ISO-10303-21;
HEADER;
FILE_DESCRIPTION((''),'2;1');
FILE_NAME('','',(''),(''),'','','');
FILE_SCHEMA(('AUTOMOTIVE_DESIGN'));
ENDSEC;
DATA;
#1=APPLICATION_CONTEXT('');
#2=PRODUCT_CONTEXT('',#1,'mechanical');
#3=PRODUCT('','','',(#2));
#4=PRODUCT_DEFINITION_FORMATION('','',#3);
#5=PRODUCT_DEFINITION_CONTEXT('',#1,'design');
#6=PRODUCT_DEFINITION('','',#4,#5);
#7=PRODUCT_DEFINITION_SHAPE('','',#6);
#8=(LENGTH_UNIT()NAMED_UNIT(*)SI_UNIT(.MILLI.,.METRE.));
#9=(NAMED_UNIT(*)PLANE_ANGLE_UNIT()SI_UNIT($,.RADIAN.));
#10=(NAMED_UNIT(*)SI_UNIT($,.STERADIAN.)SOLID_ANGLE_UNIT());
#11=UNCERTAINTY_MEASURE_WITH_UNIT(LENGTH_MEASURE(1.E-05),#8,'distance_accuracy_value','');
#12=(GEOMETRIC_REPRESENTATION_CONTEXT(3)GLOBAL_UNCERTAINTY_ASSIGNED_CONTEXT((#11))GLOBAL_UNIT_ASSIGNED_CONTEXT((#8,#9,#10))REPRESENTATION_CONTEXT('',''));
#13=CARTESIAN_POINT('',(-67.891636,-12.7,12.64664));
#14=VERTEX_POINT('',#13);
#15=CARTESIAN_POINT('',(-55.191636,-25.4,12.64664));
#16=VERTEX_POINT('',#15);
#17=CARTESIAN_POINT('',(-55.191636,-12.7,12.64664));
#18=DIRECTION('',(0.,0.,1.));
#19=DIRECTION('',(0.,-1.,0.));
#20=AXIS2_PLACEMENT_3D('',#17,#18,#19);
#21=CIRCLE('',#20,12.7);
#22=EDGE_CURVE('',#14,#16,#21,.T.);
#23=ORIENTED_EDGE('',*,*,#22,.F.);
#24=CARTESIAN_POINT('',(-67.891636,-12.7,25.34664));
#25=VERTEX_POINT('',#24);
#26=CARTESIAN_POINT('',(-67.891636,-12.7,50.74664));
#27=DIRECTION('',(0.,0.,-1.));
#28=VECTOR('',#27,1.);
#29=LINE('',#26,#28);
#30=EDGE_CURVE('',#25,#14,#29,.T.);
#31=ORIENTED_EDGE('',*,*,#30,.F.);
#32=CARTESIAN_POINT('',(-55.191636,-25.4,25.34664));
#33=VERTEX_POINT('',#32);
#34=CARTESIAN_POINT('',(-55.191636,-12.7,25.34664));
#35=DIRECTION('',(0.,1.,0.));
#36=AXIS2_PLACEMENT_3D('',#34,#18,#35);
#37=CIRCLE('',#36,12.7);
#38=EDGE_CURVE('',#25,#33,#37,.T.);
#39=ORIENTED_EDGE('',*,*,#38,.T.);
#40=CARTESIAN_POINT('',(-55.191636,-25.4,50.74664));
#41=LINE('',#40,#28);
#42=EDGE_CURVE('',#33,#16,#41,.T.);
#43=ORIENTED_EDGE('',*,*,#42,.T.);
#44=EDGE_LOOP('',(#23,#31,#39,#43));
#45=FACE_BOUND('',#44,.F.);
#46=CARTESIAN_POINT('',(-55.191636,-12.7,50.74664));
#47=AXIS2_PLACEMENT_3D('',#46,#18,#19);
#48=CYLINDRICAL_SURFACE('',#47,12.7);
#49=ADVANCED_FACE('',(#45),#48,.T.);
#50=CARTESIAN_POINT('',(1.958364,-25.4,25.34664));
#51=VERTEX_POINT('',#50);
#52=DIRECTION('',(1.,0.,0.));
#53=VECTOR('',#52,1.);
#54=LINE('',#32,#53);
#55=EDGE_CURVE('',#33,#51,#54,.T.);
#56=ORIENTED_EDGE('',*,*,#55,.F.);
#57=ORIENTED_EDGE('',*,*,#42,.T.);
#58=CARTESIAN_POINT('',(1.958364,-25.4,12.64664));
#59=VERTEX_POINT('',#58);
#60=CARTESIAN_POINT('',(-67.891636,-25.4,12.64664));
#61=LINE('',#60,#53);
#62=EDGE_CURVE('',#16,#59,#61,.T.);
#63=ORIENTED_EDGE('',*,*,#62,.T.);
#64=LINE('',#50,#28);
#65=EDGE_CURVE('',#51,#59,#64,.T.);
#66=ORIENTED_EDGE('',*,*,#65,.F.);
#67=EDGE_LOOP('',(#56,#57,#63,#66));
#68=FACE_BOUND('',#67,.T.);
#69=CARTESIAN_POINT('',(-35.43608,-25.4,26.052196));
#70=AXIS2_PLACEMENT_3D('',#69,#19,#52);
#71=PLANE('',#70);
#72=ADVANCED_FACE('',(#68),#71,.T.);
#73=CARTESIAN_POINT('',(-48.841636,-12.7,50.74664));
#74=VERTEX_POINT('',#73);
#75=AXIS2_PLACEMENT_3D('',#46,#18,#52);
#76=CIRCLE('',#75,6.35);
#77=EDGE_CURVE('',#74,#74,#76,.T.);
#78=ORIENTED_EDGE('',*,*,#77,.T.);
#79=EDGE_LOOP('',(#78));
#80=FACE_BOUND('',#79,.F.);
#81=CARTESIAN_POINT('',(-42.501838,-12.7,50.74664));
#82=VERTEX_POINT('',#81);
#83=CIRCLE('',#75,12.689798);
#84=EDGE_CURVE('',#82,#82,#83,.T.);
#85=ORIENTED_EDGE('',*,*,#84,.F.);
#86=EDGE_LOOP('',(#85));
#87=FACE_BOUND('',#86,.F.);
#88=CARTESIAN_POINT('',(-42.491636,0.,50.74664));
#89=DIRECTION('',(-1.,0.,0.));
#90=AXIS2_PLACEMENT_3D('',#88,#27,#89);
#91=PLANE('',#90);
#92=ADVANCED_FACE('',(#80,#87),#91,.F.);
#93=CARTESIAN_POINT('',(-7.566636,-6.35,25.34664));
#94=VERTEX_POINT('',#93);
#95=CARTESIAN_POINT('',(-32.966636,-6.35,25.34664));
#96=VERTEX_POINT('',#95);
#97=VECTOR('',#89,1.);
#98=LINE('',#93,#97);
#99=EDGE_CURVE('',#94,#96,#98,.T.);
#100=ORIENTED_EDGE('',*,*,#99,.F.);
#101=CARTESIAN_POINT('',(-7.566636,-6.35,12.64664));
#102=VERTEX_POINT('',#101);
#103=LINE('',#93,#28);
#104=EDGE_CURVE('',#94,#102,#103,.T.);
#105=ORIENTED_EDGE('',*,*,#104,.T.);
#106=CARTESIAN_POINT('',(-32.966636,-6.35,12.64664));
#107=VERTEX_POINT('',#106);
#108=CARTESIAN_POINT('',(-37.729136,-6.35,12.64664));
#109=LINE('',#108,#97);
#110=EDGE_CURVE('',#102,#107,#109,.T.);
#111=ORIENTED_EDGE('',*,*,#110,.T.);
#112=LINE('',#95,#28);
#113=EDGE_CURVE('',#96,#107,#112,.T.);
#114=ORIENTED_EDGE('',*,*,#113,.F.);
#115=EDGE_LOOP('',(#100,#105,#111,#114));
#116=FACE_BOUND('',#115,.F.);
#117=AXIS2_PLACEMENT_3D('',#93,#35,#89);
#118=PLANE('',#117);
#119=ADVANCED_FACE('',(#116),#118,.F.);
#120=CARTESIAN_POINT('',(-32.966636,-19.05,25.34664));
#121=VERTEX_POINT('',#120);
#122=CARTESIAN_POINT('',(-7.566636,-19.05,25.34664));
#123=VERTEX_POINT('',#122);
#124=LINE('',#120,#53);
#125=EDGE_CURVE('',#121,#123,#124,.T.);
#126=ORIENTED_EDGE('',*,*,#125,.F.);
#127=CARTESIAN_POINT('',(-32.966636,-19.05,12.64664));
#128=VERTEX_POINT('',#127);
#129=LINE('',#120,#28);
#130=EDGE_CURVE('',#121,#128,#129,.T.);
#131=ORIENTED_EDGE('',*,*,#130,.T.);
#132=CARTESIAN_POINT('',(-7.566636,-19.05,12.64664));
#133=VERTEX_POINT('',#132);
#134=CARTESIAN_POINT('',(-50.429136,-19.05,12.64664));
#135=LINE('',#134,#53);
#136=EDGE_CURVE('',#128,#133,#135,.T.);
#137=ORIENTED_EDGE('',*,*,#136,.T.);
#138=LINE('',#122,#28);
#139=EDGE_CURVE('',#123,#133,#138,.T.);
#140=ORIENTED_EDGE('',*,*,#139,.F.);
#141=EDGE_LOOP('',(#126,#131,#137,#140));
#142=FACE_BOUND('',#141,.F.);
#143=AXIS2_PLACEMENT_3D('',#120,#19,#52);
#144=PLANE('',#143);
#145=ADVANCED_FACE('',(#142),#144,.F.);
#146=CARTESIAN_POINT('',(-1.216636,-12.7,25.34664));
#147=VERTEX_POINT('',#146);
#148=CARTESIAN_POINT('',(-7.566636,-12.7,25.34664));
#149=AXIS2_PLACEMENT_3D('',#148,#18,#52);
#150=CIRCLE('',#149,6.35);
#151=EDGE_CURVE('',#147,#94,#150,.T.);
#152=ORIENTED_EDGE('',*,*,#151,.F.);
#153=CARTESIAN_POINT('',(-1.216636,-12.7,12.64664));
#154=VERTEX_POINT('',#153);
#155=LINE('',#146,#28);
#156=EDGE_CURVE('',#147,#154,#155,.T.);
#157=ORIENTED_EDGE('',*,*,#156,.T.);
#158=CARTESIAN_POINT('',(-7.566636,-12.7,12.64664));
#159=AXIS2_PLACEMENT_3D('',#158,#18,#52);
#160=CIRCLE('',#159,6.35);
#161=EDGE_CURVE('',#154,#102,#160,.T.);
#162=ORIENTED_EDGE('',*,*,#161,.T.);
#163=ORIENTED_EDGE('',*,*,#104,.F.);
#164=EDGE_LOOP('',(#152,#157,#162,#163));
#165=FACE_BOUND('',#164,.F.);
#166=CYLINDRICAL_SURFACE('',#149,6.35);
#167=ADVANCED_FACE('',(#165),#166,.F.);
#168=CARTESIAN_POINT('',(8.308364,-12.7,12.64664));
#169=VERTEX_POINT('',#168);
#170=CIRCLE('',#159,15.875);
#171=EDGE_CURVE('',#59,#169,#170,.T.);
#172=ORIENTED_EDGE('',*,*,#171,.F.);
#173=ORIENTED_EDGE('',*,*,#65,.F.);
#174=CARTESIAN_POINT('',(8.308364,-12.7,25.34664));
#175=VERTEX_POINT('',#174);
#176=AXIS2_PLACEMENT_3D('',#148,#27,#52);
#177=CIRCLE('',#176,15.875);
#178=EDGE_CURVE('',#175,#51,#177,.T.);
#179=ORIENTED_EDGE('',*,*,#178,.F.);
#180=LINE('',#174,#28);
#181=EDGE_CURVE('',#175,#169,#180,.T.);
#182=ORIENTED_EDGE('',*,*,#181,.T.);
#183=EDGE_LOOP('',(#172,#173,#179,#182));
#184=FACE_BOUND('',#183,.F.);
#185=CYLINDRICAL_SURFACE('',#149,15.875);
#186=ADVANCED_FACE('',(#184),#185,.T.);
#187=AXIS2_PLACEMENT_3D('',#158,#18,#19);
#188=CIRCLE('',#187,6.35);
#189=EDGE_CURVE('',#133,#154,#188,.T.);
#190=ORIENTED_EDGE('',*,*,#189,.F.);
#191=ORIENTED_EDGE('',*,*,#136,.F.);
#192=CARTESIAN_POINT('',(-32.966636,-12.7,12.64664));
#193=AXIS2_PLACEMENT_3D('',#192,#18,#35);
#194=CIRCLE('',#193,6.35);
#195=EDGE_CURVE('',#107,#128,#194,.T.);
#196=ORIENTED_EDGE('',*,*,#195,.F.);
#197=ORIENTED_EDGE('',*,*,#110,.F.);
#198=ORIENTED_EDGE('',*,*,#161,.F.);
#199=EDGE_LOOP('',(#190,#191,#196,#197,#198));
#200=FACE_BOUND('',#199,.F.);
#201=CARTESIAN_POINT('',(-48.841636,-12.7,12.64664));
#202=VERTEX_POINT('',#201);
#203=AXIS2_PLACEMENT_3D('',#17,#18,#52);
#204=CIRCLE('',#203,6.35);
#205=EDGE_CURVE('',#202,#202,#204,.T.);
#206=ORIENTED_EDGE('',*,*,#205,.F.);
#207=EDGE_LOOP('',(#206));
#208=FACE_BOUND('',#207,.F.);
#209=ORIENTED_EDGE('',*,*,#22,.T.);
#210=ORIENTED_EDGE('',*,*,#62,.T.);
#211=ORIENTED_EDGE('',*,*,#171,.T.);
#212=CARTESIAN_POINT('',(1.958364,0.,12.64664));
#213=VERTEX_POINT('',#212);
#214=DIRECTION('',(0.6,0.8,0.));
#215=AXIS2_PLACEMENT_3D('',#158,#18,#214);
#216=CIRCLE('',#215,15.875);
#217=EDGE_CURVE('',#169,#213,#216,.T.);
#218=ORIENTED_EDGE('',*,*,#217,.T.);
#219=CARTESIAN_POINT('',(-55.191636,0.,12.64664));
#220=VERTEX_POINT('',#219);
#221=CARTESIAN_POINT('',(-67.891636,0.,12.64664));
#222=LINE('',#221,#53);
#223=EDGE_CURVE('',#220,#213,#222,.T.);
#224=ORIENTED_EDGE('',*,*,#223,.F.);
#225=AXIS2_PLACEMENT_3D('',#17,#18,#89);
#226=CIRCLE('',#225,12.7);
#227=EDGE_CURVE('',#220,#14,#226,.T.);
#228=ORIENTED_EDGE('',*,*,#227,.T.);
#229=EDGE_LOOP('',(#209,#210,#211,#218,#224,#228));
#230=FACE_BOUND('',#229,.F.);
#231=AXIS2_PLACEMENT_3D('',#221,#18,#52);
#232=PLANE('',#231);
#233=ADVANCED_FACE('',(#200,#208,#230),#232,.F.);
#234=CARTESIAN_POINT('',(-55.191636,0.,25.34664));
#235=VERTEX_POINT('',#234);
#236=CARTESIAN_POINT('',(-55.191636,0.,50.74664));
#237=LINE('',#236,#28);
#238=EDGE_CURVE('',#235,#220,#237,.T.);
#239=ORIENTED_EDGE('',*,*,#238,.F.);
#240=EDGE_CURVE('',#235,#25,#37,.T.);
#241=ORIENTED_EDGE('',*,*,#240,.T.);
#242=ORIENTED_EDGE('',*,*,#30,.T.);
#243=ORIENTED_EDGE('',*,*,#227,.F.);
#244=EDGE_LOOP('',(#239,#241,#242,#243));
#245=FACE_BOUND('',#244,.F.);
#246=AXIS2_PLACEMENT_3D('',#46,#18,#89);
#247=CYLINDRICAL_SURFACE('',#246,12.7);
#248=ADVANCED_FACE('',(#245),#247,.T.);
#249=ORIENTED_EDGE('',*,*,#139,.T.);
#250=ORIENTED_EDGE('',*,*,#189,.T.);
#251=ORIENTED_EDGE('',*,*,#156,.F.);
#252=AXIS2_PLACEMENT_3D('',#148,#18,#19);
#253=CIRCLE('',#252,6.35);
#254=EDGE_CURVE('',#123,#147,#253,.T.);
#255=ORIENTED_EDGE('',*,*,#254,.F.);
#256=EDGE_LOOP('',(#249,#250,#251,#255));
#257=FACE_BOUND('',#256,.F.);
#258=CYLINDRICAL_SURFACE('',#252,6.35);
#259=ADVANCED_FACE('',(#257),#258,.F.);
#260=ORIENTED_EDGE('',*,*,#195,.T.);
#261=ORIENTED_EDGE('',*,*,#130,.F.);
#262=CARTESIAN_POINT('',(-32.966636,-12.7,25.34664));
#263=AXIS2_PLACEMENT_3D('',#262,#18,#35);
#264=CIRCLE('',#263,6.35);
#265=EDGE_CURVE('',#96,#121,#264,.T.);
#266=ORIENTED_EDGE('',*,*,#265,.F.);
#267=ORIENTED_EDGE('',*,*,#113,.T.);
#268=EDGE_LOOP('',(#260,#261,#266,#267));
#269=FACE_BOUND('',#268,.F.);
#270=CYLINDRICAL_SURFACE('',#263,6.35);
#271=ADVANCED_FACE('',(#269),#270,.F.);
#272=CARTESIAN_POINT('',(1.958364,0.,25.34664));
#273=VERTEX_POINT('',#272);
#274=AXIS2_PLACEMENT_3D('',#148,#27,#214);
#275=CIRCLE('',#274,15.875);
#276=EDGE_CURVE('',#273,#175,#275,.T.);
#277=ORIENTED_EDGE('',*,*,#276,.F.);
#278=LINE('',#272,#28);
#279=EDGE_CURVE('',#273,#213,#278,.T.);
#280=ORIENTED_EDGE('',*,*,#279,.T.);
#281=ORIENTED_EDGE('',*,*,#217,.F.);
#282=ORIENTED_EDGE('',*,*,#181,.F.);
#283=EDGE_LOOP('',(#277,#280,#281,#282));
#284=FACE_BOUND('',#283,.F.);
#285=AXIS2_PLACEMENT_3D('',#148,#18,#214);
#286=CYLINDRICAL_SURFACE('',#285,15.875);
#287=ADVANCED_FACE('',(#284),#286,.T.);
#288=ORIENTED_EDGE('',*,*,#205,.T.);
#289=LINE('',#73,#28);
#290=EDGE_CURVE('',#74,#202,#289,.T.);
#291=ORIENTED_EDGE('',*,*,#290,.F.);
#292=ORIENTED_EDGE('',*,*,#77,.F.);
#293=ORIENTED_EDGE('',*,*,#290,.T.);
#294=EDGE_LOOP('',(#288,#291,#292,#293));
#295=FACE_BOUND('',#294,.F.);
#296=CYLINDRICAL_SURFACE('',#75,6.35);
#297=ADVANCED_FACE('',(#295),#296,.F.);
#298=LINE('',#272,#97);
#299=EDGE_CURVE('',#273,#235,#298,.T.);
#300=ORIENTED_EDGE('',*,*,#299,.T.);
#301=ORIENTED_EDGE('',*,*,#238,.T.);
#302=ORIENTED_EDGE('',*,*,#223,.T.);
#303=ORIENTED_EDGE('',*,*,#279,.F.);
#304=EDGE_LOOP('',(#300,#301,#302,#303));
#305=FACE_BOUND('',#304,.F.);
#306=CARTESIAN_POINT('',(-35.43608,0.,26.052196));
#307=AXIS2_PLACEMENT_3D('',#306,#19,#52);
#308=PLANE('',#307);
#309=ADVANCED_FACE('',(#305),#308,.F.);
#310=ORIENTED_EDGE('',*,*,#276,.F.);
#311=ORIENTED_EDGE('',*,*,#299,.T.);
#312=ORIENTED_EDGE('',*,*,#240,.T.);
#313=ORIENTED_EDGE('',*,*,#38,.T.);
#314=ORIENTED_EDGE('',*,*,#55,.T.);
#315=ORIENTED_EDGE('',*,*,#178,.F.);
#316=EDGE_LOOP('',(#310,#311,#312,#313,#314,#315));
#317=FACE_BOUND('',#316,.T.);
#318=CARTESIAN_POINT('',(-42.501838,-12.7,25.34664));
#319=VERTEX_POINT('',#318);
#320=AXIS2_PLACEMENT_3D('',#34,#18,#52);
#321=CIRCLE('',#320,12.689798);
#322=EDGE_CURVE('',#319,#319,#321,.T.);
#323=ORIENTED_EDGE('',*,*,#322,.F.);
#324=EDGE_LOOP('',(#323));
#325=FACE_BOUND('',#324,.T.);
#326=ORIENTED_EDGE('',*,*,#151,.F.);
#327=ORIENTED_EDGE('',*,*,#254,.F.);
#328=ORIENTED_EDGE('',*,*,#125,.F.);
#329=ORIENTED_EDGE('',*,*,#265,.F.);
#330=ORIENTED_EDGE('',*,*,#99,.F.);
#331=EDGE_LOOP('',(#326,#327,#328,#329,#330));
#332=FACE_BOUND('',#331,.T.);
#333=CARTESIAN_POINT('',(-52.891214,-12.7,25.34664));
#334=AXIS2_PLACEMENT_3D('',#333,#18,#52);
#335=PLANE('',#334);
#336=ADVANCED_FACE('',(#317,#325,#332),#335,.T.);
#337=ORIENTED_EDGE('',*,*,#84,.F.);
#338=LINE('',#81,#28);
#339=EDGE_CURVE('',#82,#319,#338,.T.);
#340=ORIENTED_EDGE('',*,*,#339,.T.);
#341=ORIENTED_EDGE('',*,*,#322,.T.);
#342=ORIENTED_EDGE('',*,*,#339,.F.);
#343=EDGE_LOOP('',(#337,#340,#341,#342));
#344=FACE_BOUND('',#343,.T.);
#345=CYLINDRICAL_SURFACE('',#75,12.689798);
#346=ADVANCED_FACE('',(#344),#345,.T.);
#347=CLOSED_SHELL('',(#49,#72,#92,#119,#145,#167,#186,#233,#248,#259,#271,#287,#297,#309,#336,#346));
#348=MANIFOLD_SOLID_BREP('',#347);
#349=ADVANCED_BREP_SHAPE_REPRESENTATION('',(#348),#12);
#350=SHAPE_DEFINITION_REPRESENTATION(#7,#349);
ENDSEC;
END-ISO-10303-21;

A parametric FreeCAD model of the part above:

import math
import FreeCAD as App
import Part
import Sketcher
Q = App.Units.Quantity

doc = App.newDocument("Part")
body = doc.addObject("PartDesign::Body", "Body")

# Sketch on XZ plane
sketch1 = body.newObject("Sketcher::SketchObject", "Sketch")
sketch1.AttachmentSupport = (doc.getObject("XZ_Plane"), [""])
sketch1.MapMode = "FlatFace"
sketch1.addGeometry([
    Part.LineSegment(App.Vector(-68, 51, 0), App.Vector(-68, 13, 0)),  # 0
    Part.LineSegment(App.Vector(-68, 13, 0), App.Vector(8, 13, 0)),  # 1
    Part.LineSegment(App.Vector(8, 13, 0), App.Vector(8, 25, 0)),  # 2
    Part.LineSegment(App.Vector(8, 25, 0), App.Vector(-42, 25, 0)),  # 3
    Part.LineSegment(App.Vector(-42, 25, 0), App.Vector(-42, 51, 0)),  # 4
    Part.LineSegment(App.Vector(-42, 51, 0), App.Vector(-68, 51, 0)),  # 5
], False)
sketch1.addConstraint([
    Sketcher.Constraint("Coincident", 0, 2, 1, 1),
    Sketcher.Constraint("Coincident", 1, 2, 2, 1),
    Sketcher.Constraint("Coincident", 2, 2, 3, 1),
    Sketcher.Constraint("Coincident", 3, 2, 4, 1),
    Sketcher.Constraint("Coincident", 4, 2, 5, 1),
    Sketcher.Constraint("Coincident", 5, 2, 0, 1),
    Sketcher.Constraint("Vertical", 0),
    Sketcher.Constraint("Horizontal", 1),
    Sketcher.Constraint("Vertical", 2),
    Sketcher.Constraint("Horizontal", 3),
    Sketcher.Constraint("Vertical", 4),
    Sketcher.Constraint("Horizontal", 5),
    Sketcher.Constraint("Equal", 5, 4),
    Sketcher.Constraint("DistanceX", 1, 1, 1, 2, Q("3 in")),
    Sketcher.Constraint("DistanceX", 3, 2, 3, 1, Q("2 in")),
    Sketcher.Constraint("DistanceY", 0, 2, 0, 1, Q("1.5 in")),
    Sketcher.Constraint("DistanceY", -1, 1, 0, 2, Q("12.64664 mm")),
    Sketcher.Constraint("DistanceX", 0, 2, -1, 1, Q("67.891636 mm")),
])
pad1 = body.newObject("PartDesign::Pad", "Pad")
pad1.Profile = sketch1
pad1.Length = Q("1 in")

# Sketch on XY plane
sketch2 = body.newObject("Sketcher::SketchObject", "Sketch001")
sketch2.AttachmentSupport = (doc.getObject("XY_Plane"), [""])
sketch2.MapMode = "FlatFace"
sketch2.AttachmentOffset = App.Placement(App.Vector(0, 0, 25.34664), App.Rotation())
sketch2.addGeometry([
    Part.ArcOfCircle(Part.Circle(App.Vector(-8, -13, 0), App.Vector(0, 0, 1), 16), math.radians(0), math.radians(53)),  # 0
    Part.LineSegment(App.Vector(8, -13, 0), App.Vector(8, 0, 0)),  # 1
    Part.LineSegment(App.Vector(8, 0, 0), App.Vector(2, 0, 0)),  # 2
    Part.ArcOfCircle(Part.Circle(App.Vector(-8, -13, 0), App.Vector(0, 0, 1), 16), math.radians(-53), math.radians(0)),  # 3
    Part.LineSegment(App.Vector(2, -25, 0), App.Vector(8, -25, 0)),  # 4
    Part.LineSegment(App.Vector(8, -25, 0), App.Vector(8, -13, 0)),  # 5
], False)
sketch2.addConstraint([
    Sketcher.Constraint("Tangent", 0, 1, 1, 1),
    Sketcher.Constraint("Coincident", 1, 2, 2, 1),
    Sketcher.Constraint("Coincident", 2, 2, 0, 2),
    Sketcher.Constraint("Coincident", 3, 1, 4, 1),
    Sketcher.Constraint("Coincident", 4, 2, 5, 1),
    Sketcher.Constraint("Tangent", 5, 2, 3, 2),
    Sketcher.Constraint("Vertical", 1),
    Sketcher.Constraint("Horizontal", 2),
    Sketcher.Constraint("Horizontal", 4),
    Sketcher.Constraint("Vertical", 5),
    Sketcher.Constraint("Coincident", 3, 3, 0, 3),
    Sketcher.Constraint("Equal", 0, 3),
    Sketcher.Constraint("PointOnObject", 1, 2, -1),
    Sketcher.Constraint("Vertical", 2, 2, 3, 1),
    Sketcher.Constraint("DistanceY", 1, 1, 1, 2, Q("0.5 in")),
    Sketcher.Constraint("Radius", 0, Q("0.625 in")),
    Sketcher.Constraint("DistanceX", 0, 3, -1, 1, Q("7.566636 mm")),
])
pocket1 = body.newObject("PartDesign::Pocket", "Pocket")
pocket1.Profile = sketch2
pocket1.Type = "ThroughAll"

# Sketch on XY plane
sketch3 = body.newObject("Sketcher::SketchObject", "Sketch002")
sketch3.AttachmentSupport = (doc.getObject("XY_Plane"), [""])
sketch3.MapMode = "FlatFace"
sketch3.AttachmentOffset = App.Placement(App.Vector(0, 0, 50.74664), App.Rotation())
sketch3.addGeometry([
    Part.ArcOfCircle(Part.Circle(App.Vector(-55, -13, 0), App.Vector(0, 0, 1), 13), math.radians(90), math.radians(180)),  # 0
    Part.LineSegment(App.Vector(-55, 0, 0), App.Vector(-68, 0, 0)),  # 1
    Part.LineSegment(App.Vector(-68, 0, 0), App.Vector(-68, -13, 0)),  # 2
    Part.LineSegment(App.Vector(-68, -25, 0), App.Vector(-55, -25, 0)),  # 3
    Part.ArcOfCircle(Part.Circle(App.Vector(-55, -13, 0), App.Vector(0, 0, 1), 13), math.radians(180), math.radians(270)),  # 4
    Part.LineSegment(App.Vector(-68, -13, 0), App.Vector(-68, -25, 0)),  # 5
], False)
sketch3.addConstraint([
    Sketcher.Constraint("Tangent", 0, 1, 1, 1),
    Sketcher.Constraint("Coincident", 1, 2, 2, 1),
    Sketcher.Constraint("Tangent", 2, 2, 0, 2),
    Sketcher.Constraint("Tangent", 3, 2, 4, 2),
    Sketcher.Constraint("Tangent", 4, 1, 5, 1),
    Sketcher.Constraint("Coincident", 5, 2, 3, 1),
    Sketcher.Constraint("Horizontal", 1),
    Sketcher.Constraint("Vertical", 2),
    Sketcher.Constraint("Horizontal", 3),
    Sketcher.Constraint("Vertical", 5),
    Sketcher.Constraint("Coincident", 4, 3, 0, 3),
    Sketcher.Constraint("Equal", 0, 4),
    Sketcher.Constraint("PointOnObject", 0, 1, -1),
    Sketcher.Constraint("Radius", 0, Q("0.5 in")),
    Sketcher.Constraint("DistanceX", 0, 3, -1, 1, Q("55.191636 mm")),
])
pocket2 = body.newObject("PartDesign::Pocket", "Pocket001")
pocket2.Profile = sketch3
pocket2.Type = "ThroughAll"

# Sketch on XY plane
sketch4 = body.newObject("Sketcher::SketchObject", "Sketch003")
sketch4.AttachmentSupport = (doc.getObject("XY_Plane"), [""])
sketch4.MapMode = "FlatFace"
sketch4.AttachmentOffset = App.Placement(App.Vector(0, 0, 50.74664), App.Rotation())
sketch4.addGeometry([
    Part.LineSegment(App.Vector(-42, -25, 0), App.Vector(-42, 0, 0)),  # 0
    Part.LineSegment(App.Vector(-42, 0, 0), App.Vector(-55, 0, 0)),  # 1
    Part.ArcOfCircle(Part.Circle(App.Vector(-55, -13, 0), App.Vector(0, 0, 1), 13), math.radians(90), math.radians(270)),  # 2
    Part.LineSegment(App.Vector(-55, -25, 0), App.Vector(-42, -25, 0)),  # 3
    Part.Circle(App.Vector(-55, -13, 0), App.Vector(0, 0, 1), 13),  # 4
], False)
sketch4.addConstraint([
    Sketcher.Constraint("Coincident", 0, 2, 1, 1),
    Sketcher.Constraint("Tangent", 1, 2, 2, 1),
    Sketcher.Constraint("Tangent", 2, 2, 3, 1),
    Sketcher.Constraint("Coincident", 3, 2, 0, 1),
    Sketcher.Constraint("Vertical", 0),
    Sketcher.Constraint("Horizontal", 1),
    Sketcher.Constraint("Horizontal", 3),
    Sketcher.Constraint("Coincident", 4, 3, 2, 3),
    Sketcher.Constraint("PointOnObject", 0, 2, -1),
    Sketcher.Constraint("Radius", 2, Q("0.5 in")),
    Sketcher.Constraint("DistanceX", 1, 2, 1, 1, Q("0.5 in")),
    Sketcher.Constraint("Diameter", 4, Q("25.379597 mm")),
    Sketcher.Constraint("DistanceX", 2, 3, -1, 1, Q("55.191636 mm")),
])
pocket3 = body.newObject("PartDesign::Pocket", "Pocket002")
pocket3.Profile = sketch4
pocket3.Length = Q("1 in")

# Sketch on XY plane
sketch5 = body.newObject("Sketcher::SketchObject", "Sketch004")
sketch5.AttachmentSupport = (doc.getObject("XY_Plane"), [""])
sketch5.MapMode = "FlatFace"
sketch5.AttachmentOffset = App.Placement(App.Vector(0, 0, 50.74664), App.Rotation())
sketch5.addGeometry(Part.Circle(App.Vector(-55, -13, 0), App.Vector(0, 0, 1), 6), False)
sketch5.addConstraint([
    Sketcher.Constraint("Diameter", 0, Q("0.5 in")),
    Sketcher.Constraint("DistanceY", 0, 3, -1, 1, Q("0.5 in")),
    Sketcher.Constraint("DistanceX", 0, 3, -1, 1, Q("55.191636 mm")),
])
pocket4 = body.newObject("PartDesign::Pocket", "Pocket003")
pocket4.Profile = sketch5
pocket4.Type = "ThroughAll"

# Sketch on XY plane
sketch6 = body.newObject("Sketcher::SketchObject", "Sketch005")
sketch6.AttachmentSupport = (doc.getObject("XY_Plane"), [""])
sketch6.MapMode = "FlatFace"
sketch6.AttachmentOffset = App.Placement(App.Vector(0, 0, 25.34664), App.Rotation())
sketch6.addGeometry([
    Part.ArcOfCircle(Part.Circle(App.Vector(-8, -13, 0), App.Vector(0, 0, 1), 6), math.radians(-90), math.radians(0)),  # 0
    Part.ArcOfCircle(Part.Circle(App.Vector(-8, -13, 0), App.Vector(0, 0, 1), 6), math.radians(0), math.radians(90)),  # 1
    Part.LineSegment(App.Vector(-8, -6, 0), App.Vector(-33, -6, 0)),  # 2
    Part.ArcOfCircle(Part.Circle(App.Vector(-33, -13, 0), App.Vector(0, 0, 1), 6), math.radians(90), math.radians(270)),  # 3
    Part.LineSegment(App.Vector(-33, -19, 0), App.Vector(-8, -19, 0)),  # 4
], False)
sketch6.addConstraint([
    Sketcher.Constraint("Tangent", 0, 2, 1, 1),
    Sketcher.Constraint("Tangent", 1, 2, 2, 1),
    Sketcher.Constraint("Tangent", 2, 2, 3, 1),
    Sketcher.Constraint("Tangent", 3, 2, 4, 1),
    Sketcher.Constraint("Tangent", 4, 2, 0, 1),
    Sketcher.Constraint("Horizontal", 2),
    Sketcher.Constraint("Horizontal", 4),
    Sketcher.Constraint("Equal", 0, 1),
    Sketcher.Constraint("Horizontal", 3, 3, 0, 2),
    Sketcher.Constraint("DistanceX", 2, 2, 2, 1, Q("1 in")),
    Sketcher.Constraint("Radius", 0, Q("0.25 in")),
    Sketcher.Constraint("DistanceY", 0, 3, -1, 1, Q("0.5 in")),
    Sketcher.Constraint("DistanceX", 0, 3, -1, 1, Q("7.566636 mm")),
])
pocket5 = body.newObject("PartDesign::Pocket", "Pocket004")
pocket5.Profile = sketch6
pocket5.Type = "ThroughAll"

doc.recompute()
